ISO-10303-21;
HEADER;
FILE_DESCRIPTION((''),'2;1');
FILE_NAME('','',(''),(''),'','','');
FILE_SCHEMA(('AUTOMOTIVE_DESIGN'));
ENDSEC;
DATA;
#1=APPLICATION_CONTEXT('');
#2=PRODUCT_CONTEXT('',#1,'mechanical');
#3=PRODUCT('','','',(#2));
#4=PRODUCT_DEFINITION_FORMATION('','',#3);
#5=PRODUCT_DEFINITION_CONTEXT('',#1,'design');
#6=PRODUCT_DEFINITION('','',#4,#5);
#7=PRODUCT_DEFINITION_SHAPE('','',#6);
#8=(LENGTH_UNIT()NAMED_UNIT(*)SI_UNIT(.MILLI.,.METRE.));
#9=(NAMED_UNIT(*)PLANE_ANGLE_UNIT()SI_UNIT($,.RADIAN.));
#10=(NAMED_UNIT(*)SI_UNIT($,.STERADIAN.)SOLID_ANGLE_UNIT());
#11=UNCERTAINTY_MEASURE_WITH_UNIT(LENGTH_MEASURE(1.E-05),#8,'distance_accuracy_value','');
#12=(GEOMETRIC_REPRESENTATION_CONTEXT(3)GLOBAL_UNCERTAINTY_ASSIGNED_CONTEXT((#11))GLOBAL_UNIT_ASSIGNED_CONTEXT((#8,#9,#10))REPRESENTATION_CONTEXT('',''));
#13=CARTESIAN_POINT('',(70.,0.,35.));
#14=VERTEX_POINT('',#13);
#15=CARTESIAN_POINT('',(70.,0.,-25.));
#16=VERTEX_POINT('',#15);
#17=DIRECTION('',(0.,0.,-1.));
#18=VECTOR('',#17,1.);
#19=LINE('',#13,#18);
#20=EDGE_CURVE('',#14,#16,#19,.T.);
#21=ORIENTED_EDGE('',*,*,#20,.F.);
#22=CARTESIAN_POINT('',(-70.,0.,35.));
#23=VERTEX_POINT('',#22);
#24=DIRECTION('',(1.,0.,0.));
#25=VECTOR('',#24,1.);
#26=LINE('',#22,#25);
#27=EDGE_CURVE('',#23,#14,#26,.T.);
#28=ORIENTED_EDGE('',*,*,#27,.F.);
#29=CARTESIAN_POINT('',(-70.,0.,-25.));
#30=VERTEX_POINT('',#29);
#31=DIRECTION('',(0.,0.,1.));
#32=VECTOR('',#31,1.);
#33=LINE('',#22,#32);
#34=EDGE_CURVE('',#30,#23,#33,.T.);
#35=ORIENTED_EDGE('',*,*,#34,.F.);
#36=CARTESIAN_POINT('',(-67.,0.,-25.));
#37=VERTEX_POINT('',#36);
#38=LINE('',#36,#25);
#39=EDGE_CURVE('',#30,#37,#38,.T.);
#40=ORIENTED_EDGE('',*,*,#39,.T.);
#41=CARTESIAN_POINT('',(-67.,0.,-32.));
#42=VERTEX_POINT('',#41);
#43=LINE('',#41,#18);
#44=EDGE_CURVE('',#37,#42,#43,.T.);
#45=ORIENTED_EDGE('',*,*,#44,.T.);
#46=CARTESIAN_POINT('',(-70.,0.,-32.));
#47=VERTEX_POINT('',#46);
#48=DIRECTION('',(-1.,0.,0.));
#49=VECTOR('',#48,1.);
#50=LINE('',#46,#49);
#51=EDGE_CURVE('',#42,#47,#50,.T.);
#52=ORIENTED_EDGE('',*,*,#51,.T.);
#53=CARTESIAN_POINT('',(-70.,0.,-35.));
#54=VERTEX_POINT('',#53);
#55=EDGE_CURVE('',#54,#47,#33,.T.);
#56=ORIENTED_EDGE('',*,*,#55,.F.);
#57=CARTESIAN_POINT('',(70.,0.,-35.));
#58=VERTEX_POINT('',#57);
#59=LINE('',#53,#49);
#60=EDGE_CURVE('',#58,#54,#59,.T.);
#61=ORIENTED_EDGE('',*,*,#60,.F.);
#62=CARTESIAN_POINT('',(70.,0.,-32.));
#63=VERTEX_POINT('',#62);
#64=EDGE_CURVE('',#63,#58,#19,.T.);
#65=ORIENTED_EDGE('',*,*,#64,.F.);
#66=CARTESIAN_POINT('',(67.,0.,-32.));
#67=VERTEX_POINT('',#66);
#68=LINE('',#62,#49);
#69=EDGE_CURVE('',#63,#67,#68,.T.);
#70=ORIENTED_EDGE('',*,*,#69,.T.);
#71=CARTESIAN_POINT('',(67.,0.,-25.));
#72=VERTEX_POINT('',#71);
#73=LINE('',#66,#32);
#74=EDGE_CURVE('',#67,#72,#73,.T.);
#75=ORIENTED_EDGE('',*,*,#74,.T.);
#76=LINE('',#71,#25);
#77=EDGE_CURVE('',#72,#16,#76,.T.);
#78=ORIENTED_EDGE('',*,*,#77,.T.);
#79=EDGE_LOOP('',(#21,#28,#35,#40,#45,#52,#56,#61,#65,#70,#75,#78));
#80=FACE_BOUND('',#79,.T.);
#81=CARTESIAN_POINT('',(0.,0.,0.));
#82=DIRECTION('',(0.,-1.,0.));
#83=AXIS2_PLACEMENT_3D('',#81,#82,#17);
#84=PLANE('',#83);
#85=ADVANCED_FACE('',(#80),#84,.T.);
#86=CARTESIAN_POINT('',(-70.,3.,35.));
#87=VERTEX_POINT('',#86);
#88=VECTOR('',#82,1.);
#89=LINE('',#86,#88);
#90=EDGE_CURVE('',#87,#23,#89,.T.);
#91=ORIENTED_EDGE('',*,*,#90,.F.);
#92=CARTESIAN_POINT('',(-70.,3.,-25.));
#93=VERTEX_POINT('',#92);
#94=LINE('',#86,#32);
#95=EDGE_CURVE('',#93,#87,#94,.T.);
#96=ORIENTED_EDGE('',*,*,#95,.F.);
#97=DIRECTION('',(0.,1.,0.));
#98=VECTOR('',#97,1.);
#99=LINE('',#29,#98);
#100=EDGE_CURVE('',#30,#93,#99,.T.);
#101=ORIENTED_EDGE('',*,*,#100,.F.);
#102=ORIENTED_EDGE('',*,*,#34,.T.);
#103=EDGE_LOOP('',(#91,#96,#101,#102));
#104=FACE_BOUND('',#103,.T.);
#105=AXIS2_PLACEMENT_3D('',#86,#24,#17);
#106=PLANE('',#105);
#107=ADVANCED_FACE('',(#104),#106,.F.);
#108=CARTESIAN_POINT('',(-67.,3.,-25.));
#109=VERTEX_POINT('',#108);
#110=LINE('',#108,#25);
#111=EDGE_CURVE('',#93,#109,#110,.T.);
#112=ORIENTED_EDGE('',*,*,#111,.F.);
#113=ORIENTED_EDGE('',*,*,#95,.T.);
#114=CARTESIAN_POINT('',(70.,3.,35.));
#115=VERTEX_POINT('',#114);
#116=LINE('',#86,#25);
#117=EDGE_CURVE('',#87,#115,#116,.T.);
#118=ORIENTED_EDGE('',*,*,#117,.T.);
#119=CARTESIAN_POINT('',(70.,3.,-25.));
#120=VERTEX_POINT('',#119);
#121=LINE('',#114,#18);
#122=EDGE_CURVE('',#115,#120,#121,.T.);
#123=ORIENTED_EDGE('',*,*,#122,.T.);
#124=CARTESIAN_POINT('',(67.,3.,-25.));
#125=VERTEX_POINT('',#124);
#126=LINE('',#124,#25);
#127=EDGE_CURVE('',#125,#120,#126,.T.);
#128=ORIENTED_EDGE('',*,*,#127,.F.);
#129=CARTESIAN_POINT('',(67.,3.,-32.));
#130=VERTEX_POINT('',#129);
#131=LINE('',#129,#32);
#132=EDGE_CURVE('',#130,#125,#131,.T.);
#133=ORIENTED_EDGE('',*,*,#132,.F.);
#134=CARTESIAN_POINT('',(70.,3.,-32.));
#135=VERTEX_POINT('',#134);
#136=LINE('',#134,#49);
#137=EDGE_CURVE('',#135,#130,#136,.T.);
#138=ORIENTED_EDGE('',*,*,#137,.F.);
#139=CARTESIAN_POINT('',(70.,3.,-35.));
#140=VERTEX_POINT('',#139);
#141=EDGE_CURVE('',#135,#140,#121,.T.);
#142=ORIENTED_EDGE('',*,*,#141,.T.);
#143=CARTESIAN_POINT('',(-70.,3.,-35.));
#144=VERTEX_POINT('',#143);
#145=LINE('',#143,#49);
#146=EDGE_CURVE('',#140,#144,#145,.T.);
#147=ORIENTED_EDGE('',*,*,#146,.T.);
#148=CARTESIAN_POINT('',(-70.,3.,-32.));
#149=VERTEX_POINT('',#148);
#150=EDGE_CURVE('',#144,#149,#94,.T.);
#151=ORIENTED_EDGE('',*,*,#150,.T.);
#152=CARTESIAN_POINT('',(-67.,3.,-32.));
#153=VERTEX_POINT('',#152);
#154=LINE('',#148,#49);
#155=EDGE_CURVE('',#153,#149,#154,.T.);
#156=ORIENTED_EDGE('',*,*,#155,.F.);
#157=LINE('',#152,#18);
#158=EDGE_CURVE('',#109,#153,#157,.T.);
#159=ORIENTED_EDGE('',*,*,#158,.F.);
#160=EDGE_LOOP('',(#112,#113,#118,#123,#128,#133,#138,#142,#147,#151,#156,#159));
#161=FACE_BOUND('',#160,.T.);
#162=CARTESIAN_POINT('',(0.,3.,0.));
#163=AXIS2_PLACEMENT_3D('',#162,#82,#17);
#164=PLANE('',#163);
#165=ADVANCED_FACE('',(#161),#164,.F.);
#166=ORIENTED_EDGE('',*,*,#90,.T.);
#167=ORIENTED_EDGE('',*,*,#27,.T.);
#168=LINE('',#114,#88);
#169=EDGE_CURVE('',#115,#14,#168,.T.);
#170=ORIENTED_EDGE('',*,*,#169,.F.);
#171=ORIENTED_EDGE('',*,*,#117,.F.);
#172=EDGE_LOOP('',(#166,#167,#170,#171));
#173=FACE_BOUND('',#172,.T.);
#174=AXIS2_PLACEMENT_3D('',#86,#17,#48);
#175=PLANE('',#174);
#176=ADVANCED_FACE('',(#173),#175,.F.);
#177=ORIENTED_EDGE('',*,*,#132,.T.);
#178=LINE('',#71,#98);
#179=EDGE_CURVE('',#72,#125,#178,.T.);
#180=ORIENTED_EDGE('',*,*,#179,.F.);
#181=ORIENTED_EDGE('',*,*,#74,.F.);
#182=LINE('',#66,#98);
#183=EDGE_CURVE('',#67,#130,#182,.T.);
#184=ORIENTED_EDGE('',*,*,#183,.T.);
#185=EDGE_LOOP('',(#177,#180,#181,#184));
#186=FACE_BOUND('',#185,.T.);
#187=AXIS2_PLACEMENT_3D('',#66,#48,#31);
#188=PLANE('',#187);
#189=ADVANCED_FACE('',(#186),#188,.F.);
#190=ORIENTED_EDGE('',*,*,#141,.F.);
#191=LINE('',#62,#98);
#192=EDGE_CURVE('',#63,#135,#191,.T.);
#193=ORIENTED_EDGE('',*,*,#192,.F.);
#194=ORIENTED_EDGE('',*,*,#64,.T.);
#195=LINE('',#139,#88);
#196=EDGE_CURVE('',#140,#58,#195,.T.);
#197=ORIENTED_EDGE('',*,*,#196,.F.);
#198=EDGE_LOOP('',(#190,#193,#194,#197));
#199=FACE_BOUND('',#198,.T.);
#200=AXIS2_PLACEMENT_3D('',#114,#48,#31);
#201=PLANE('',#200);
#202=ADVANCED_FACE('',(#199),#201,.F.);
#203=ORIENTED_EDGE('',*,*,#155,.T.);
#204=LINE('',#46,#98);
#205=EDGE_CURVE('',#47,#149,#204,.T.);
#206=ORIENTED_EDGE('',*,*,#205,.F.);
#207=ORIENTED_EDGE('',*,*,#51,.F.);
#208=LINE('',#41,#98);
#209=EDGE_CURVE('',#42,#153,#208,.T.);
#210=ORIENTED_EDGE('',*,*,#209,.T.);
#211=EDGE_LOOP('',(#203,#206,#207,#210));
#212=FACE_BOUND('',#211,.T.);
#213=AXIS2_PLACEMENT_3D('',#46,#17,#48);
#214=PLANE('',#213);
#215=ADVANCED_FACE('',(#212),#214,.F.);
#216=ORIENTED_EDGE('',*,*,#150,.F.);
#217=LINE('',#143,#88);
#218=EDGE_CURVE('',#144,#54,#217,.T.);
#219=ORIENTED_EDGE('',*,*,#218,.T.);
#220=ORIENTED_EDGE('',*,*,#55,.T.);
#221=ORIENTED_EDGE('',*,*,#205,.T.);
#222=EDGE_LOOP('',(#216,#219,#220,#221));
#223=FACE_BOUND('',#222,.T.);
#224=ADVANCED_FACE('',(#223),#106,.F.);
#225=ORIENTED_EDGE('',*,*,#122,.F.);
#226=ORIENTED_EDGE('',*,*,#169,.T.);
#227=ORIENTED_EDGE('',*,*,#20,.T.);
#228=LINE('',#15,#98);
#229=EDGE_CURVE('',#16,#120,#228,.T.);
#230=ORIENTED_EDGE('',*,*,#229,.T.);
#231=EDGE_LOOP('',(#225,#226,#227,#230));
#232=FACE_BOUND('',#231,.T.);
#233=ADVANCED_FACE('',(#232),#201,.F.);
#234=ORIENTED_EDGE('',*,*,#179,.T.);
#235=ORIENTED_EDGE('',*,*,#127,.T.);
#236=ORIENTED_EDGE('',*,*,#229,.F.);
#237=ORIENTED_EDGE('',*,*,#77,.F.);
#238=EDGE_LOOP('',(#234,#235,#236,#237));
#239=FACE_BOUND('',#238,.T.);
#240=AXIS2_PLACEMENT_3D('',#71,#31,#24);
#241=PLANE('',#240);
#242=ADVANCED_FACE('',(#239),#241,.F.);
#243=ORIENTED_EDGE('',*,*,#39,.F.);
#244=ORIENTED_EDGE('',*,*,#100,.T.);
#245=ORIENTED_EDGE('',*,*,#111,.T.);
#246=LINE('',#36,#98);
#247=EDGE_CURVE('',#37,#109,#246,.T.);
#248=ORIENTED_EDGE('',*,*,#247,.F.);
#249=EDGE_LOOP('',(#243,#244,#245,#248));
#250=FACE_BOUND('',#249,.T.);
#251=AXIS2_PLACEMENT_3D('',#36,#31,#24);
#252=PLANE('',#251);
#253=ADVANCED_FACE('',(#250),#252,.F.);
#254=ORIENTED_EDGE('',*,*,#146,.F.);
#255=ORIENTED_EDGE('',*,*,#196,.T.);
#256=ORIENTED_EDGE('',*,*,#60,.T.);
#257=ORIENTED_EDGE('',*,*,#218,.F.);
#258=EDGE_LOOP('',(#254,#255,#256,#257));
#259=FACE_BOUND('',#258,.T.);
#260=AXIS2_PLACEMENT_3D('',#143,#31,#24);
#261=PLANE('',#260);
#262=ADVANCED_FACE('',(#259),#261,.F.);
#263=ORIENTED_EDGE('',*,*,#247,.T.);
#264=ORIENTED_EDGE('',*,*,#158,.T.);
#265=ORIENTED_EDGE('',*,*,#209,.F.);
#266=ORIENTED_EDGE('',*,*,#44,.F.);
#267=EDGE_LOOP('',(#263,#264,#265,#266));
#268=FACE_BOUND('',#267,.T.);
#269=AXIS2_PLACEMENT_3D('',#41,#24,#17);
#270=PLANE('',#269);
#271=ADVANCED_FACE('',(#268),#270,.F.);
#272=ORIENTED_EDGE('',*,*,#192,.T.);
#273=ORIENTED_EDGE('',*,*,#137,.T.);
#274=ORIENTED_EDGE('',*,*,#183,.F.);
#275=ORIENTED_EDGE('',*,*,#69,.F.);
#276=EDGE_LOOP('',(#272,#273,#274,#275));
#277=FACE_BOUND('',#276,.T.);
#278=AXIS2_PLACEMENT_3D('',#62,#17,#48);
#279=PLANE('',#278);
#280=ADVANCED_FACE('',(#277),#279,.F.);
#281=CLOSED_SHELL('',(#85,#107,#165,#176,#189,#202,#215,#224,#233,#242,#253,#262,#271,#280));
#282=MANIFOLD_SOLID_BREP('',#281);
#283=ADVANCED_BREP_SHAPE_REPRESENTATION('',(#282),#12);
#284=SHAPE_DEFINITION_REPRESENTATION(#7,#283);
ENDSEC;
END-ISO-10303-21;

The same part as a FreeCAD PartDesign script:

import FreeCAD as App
import Part
import Sketcher
Q = App.Units.Quantity

doc = App.newDocument("Part")
body = doc.addObject("PartDesign::Body", "Body")

# Sketch on XZ plane
sketch1 = body.newObject("Sketcher::SketchObject", "Sketch")
sketch1.AttachmentSupport = (doc.getObject("XZ_Plane"), [""])
sketch1.MapMode = "FlatFace"
sketch1.addGeometry(Part.LineSegment(App.Vector(-70, -35, 0), App.Vector(-70, 35, 0)), False)
sketch1.addGeometry(Part.LineSegment(App.Vector(-70, 35, 0), App.Vector(70, 35, 0)), False)
sketch1.addGeometry(Part.LineSegment(App.Vector(70, 35, 0), App.Vector(70, -35, 0)), False)
sketch1.addGeometry(Part.LineSegment(App.Vector(70, -35, 0), App.Vector(-70, -35, 0)), False)
sketch1.addConstraint(Sketcher.Constraint("Coincident", 0, 2, 1, 1))
sketch1.addConstraint(Sketcher.Constraint("Coincident", 1, 2, 2, 1))
sketch1.addConstraint(Sketcher.Constraint("Coincident", 2, 2, 3, 1))
sketch1.addConstraint(Sketcher.Constraint("Coincident", 3, 2, 0, 1))
sketch1.addConstraint(Sketcher.Constraint("Vertical", 0))
sketch1.addConstraint(Sketcher.Constraint("Horizontal", 1))
sketch1.addConstraint(Sketcher.Constraint("Vertical", 2))
sketch1.addConstraint(Sketcher.Constraint("Horizontal", 3))
sketch1.addConstraint(Sketcher.Constraint("Symmetric", 0, 2, 2, 2, -1, 1))
sketch1.addConstraint(Sketcher.Constraint("DistanceX", 1, 1, 1, 2, Q("140 mm")))
sketch1.addConstraint(Sketcher.Constraint("DistanceY", 0, 1, 0, 2, Q("70 mm")))
pad1 = body.newObject("PartDesign::Pad", "Pad")
pad1.Profile = sketch1
pad1.Length = 3
pad1.Reversed = True

# Sketch on XZ plane
sketch2 = body.newObject("Sketcher::SketchObject", "Sketch001")
sketch2.AttachmentSupport = (doc.getObject("XZ_Plane"), [""])
sketch2.MapMode = "FlatFace"
sketch2.AttachmentOffset = App.Placement(App.Vector(0, 0, -3), App.Rotation())
sketch2.addGeometry(Part.LineSegment(App.Vector(-70, -32, 0), App.Vector(-70, -25, 0)), False)
sketch2.addGeometry(Part.LineSegment(App.Vector(-70, -25, 0), App.Vector(-67, -25, 0)), False)
sketch2.addGeometry(Part.LineSegment(App.Vector(-67, -25, 0), App.Vector(-67, -32, 0)), False)
sketch2.addGeometry(Part.LineSegment(App.Vector(-67, -32, 0), App.Vector(-70, -32, 0)), False)
sketch2.addGeometry(Part.LineSegment(App.Vector(67, -32, 0), App.Vector(67, -25, 0)), False)
sketch2.addGeometry(Part.LineSegment(App.Vector(67, -25, 0), App.Vector(70, -25, 0)), False)
sketch2.addGeometry(Part.LineSegment(App.Vector(70, -25, 0), App.Vector(70, -32, 0)), False)
sketch2.addGeometry(Part.LineSegment(App.Vector(70, -32, 0), App.Vector(67, -32, 0)), False)
sketch2.addConstraint(Sketcher.Constraint("Coincident", 0, 2, 1, 1))
sketch2.addConstraint(Sketcher.Constraint("Coincident", 1, 2, 2, 1))
sketch2.addConstraint(Sketcher.Constraint("Coincident", 2, 2, 3, 1))
sketch2.addConstraint(Sketcher.Constraint("Coincident", 3, 2, 0, 1))
sketch2.addConstraint(Sketcher.Constraint("Coincident", 4, 2, 5, 1))
sketch2.addConstraint(Sketcher.Constraint("Coincident", 5, 2, 6, 1))
sketch2.addConstraint(Sketcher.Constraint("Coincident", 6, 2, 7, 1))
sketch2.addConstraint(Sketcher.Constraint("Coincident", 7, 2, 4, 1))
sketch2.addConstraint(Sketcher.Constraint("Vertical", 0))
sketch2.addConstraint(Sketcher.Constraint("Horizontal", 1))
sketch2.addConstraint(Sketcher.Constraint("Vertical", 2))
sketch2.addConstraint(Sketcher.Constraint("Horizontal", 3))
sketch2.addConstraint(Sketcher.Constraint("Vertical", 4))
sketch2.addConstraint(Sketcher.Constraint("Horizontal", 5))
sketch2.addConstraint(Sketcher.Constraint("Vertical", 6))
sketch2.addConstraint(Sketcher.Constraint("Horizontal", 7))
sketch2.addConstraint(Sketcher.Constraint("Symmetric", 1, 2, 4, 2, -2))
sketch2.addConstraint(Sketcher.Constraint("Symmetric", 3, 2, 6, 2, -2))
sketch2.addConstraint(Sketcher.Constraint("DistanceX", 1, 1, 1, 2, Q("3 mm")))
sketch2.addConstraint(Sketcher.Constraint("DistanceY", 0, 1, 0, 2, Q("7 mm")))
sketch2.addConstraint(Sketcher.Constraint("DistanceX", 0, 2, -1, 1, Q("70 mm")))
sketch2.addConstraint(Sketcher.Constraint("DistanceY", 0, 2, -1, 1, Q("25 mm")))
pocket1 = body.newObject("PartDesign::Pocket", "Pocket")
pocket1.Profile = sketch2
pocket1.Length = 3
pocket1.Reversed = True

doc.recompute()
